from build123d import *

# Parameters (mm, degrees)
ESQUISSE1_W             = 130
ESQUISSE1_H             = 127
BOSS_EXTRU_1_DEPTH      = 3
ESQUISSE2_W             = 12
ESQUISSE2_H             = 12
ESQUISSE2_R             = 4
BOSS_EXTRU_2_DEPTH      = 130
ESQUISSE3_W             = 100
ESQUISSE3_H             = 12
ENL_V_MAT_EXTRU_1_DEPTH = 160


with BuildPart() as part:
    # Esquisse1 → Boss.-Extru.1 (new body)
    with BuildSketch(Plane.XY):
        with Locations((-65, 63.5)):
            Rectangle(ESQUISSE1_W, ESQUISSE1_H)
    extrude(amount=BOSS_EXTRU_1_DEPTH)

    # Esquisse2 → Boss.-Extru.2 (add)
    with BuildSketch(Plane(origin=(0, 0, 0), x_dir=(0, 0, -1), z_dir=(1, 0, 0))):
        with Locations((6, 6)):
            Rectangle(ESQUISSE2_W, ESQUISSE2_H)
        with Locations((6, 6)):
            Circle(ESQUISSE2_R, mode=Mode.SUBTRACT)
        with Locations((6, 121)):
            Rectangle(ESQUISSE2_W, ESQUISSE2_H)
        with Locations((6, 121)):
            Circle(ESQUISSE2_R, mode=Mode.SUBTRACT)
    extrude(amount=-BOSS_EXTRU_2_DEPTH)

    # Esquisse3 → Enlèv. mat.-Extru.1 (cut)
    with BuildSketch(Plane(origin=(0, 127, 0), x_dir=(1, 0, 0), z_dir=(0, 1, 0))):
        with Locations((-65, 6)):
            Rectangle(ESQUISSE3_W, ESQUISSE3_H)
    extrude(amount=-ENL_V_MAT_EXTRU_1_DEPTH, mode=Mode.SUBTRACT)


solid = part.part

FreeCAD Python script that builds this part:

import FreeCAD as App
import Part
import Sketcher

V = App.Vector
Q = App.Units.Quantity

doc = App.newDocument("Part")
body = doc.addObject("PartDesign::Body", "Body")

# Sketch on XY plane
sketch1 = body.newObject("Sketcher::SketchObject", "Sketch")
sketch1.AttachmentSupport = (doc.getObject("XY_Plane"), [""])
sketch1.MapMode = "FlatFace"
sketch1.addGeometry(Part.LineSegment(V(-130, 127, 0), V(-130, 0, 0)), False)
sketch1.addGeometry(Part.LineSegment(V(-130, 0, 0), V(0, 0, 0)), False)
sketch1.addGeometry(Part.LineSegment(V(0, 0, 0), V(0, 127, 0)), False)
sketch1.addGeometry(Part.LineSegment(V(0, 127, 0), V(-130, 127, 0)), False)
sketch1.addConstraint(Sketcher.Constraint("Coincident", 0, 2, 1, 1))
sketch1.addConstraint(Sketcher.Constraint("Coincident", 1, 2, 2, 1))
sketch1.addConstraint(Sketcher.Constraint("Coincident", 2, 2, 3, 1))
sketch1.addConstraint(Sketcher.Constraint("Coincident", 3, 2, 0, 1))
sketch1.addConstraint(Sketcher.Constraint("Vertical", 0))
sketch1.addConstraint(Sketcher.Constraint("Horizontal", 1))
sketch1.addConstraint(Sketcher.Constraint("Vertical", 2))
sketch1.addConstraint(Sketcher.Constraint("Horizontal", 3))
sketch1.addConstraint(Sketcher.Constraint("Coincident", 1, 2, -1, 1))
sketch1.addConstraint(Sketcher.Constraint("DistanceX", 1, 1, 1, 2, Q("130 mm")))
sketch1.addConstraint(Sketcher.Constraint("DistanceY", 0, 2, 0, 1, Q("127 mm")))
pad1 = body.newObject("PartDesign::Pad", "Pad")
pad1.Profile = sketch1
pad1.Length = 3

# Sketch on YZ plane
sketch2 = body.newObject("Sketcher::SketchObject", "Sketch001")
sketch2.AttachmentSupport = (doc.getObject("YZ_Plane"), [""])
sketch2.MapMode = "FlatFace"
sketch2.addGeometry(Part.LineSegment(V(12, 0, 0), V(0, 0, 0)), False)
sketch2.addGeometry(Part.LineSegment(V(0, 0, 0), V(0, -12, 0)), False)
sketch2.addGeometry(Part.LineSegment(V(0, -12, 0), V(12, -12, 0)), False)
sketch2.addGeometry(Part.LineSegment(V(12, -12, 0), V(12, 0, 0)), False)
sketch2.addGeometry(Part.Circle(V(6, -6, 0), V(0, 0, 1), 4), False)
sketch2.addGeometry(Part.LineSegment(V(127, 0, 0), V(115, 0, 0)), False)
sketch2.addGeometry(Part.LineSegment(V(115, 0, 0), V(115, -12, 0)), False)
sketch2.addGeometry(Part.LineSegment(V(115, -12, 0), V(127, -12, 0)), False)
sketch2.addGeometry(Part.LineSegment(V(127, -12, 0), V(127, 0, 0)), False)
sketch2.addGeometry(Part.Circle(V(121, -6, 0), V(0, 0, 1), 4), False)
sketch2.addConstraint(Sketcher.Constraint("Coincident", 0, 2, 1, 1))
sketch2.addConstraint(Sketcher.Constraint("Coincident", 1, 2, 2, 1))
sketch2.addConstraint(Sketcher.Constraint("Coincident", 2, 2, 3, 1))
sketch2.addConstraint(Sketcher.Constraint("Coincident", 3, 2, 0, 1))
sketch2.addConstraint(Sketcher.Constraint("Coincident", 5, 2, 6, 1))
sketch2.addConstraint(Sketcher.Constraint("Coincident", 6, 2, 7, 1))
sketch2.addConstraint(Sketcher.Constraint("Coincident", 7, 2, 8, 1))
sketch2.addConstraint(Sketcher.Constraint("Coincident", 8, 2, 5, 1))
sketch2.addConstraint(Sketcher.Constraint("Horizontal", 0))
sketch2.addConstraint(Sketcher.Constraint("Vertical", 1))
sketch2.addConstraint(Sketcher.Constraint("Horizontal", 2))
sketch2.addConstraint(Sketcher.Constraint("Vertical", 3))
sketch2.addConstraint(Sketcher.Constraint("Horizontal", 5))
sketch2.addConstraint(Sketcher.Constraint("Vertical", 6))
sketch2.addConstraint(Sketcher.Constraint("Horizontal", 7))
sketch2.addConstraint(Sketcher.Constraint("Vertical", 8))
sketch2.addConstraint(Sketcher.Constraint("Coincident", 0, 2, -1, 1))
sketch2.addConstraint(Sketcher.Constraint("Equal", 4, 9))
sketch2.addConstraint(Sketcher.Constraint("PointOnObject", 5, 2, -1))
sketch2.addConstraint(Sketcher.Constraint("Horizontal", 4, 3, 9, 3))
sketch2.addConstraint(Sketcher.Constraint("Horizontal", 2, 2, 6, 2))
sketch2.addConstraint(Sketcher.Constraint("Equal", 2, 5))
sketch2.addConstraint(Sketcher.Constraint("Equal", 7, 1))
sketch2.addConstraint(Sketcher.Constraint("Diameter", 4, Q("8 mm")))
sketch2.addConstraint(Sketcher.Constraint("DistanceX", 0, 2, 0, 1, Q("12 mm")))
sketch2.addConstraint(Sketcher.Constraint("DistanceX", -1, 1, 4, 3, Q("6 mm")))
sketch2.addConstraint(Sketcher.Constraint("DistanceY", 4, 3, -1, 1, Q("6 mm")))
sketch2.addConstraint(Sketcher.Constraint("DistanceX", -1, 1, 9, 3, Q("121 mm")))
sketch2.addConstraint(Sketcher.Constraint("DistanceX", -1, 1, 5, 2, Q("115 mm")))
pad2 = body.newObject("PartDesign::Pad", "Pad001")
pad2.Profile = sketch2
pad2.Length = 130
pad2.Reversed = True

# Sketch on XZ plane
sketch3 = body.newObject("Sketcher::SketchObject", "Sketch002")
sketch3.AttachmentSupport = (doc.getObject("XZ_Plane"), [""])
sketch3.MapMode = "FlatFace"
sketch3.AttachmentOffset = App.Placement(V(0, 0, -127), App.Rotation())
sketch3.addGeometry(Part.LineSegment(V(-115, -12, 0), V(-115, 0, 0)), False)
sketch3.addGeometry(Part.LineSegment(V(-115, 0, 0), V(-15, 0, 0)), False)
sketch3.addGeometry(Part.LineSegment(V(-15, 0, 0), V(-15, -12, 0)), False)
sketch3.addGeometry(Part.LineSegment(V(-15, -12, 0), V(-115, -12, 0)), False)
sketch3.addConstraint(Sketcher.Constraint("Coincident", 0, 2, 1, 1))
sketch3.addConstraint(Sketcher.Constraint("Coincident", 1, 2, 2, 1))
sketch3.addConstraint(Sketcher.Constraint("Coincident", 2, 2, 3, 1))
sketch3.addConstraint(Sketcher.Constraint("Coincident", 3, 2, 0, 1))
sketch3.addConstraint(Sketcher.Constraint("Vertical", 0))
sketch3.addConstraint(Sketcher.Constraint("Horizontal", 1))
sketch3.addConstraint(Sketcher.Constraint("Vertical", 2))
sketch3.addConstraint(Sketcher.Constraint("Horizontal", 3))
sketch3.addConstraint(Sketcher.Constraint("PointOnObject", 0, 2, -1))
sketch3.addConstraint(Sketcher.Constraint("DistanceX", 1, 1, 1, 2, Q("100 mm")))
sketch3.addConstraint(Sketcher.Constraint("DistanceY", 0, 1, 0, 2, Q("12 mm")))
sketch3.addConstraint(Sketcher.Constraint("DistanceX", 0, 2, -1, 1, Q("115 mm")))
pocket1 = body.newObject("PartDesign::Pocket", "Pocket")
pocket1.Profile = sketch3
pocket1.Length = 160
pocket1.Reversed = True

doc.recompute()
